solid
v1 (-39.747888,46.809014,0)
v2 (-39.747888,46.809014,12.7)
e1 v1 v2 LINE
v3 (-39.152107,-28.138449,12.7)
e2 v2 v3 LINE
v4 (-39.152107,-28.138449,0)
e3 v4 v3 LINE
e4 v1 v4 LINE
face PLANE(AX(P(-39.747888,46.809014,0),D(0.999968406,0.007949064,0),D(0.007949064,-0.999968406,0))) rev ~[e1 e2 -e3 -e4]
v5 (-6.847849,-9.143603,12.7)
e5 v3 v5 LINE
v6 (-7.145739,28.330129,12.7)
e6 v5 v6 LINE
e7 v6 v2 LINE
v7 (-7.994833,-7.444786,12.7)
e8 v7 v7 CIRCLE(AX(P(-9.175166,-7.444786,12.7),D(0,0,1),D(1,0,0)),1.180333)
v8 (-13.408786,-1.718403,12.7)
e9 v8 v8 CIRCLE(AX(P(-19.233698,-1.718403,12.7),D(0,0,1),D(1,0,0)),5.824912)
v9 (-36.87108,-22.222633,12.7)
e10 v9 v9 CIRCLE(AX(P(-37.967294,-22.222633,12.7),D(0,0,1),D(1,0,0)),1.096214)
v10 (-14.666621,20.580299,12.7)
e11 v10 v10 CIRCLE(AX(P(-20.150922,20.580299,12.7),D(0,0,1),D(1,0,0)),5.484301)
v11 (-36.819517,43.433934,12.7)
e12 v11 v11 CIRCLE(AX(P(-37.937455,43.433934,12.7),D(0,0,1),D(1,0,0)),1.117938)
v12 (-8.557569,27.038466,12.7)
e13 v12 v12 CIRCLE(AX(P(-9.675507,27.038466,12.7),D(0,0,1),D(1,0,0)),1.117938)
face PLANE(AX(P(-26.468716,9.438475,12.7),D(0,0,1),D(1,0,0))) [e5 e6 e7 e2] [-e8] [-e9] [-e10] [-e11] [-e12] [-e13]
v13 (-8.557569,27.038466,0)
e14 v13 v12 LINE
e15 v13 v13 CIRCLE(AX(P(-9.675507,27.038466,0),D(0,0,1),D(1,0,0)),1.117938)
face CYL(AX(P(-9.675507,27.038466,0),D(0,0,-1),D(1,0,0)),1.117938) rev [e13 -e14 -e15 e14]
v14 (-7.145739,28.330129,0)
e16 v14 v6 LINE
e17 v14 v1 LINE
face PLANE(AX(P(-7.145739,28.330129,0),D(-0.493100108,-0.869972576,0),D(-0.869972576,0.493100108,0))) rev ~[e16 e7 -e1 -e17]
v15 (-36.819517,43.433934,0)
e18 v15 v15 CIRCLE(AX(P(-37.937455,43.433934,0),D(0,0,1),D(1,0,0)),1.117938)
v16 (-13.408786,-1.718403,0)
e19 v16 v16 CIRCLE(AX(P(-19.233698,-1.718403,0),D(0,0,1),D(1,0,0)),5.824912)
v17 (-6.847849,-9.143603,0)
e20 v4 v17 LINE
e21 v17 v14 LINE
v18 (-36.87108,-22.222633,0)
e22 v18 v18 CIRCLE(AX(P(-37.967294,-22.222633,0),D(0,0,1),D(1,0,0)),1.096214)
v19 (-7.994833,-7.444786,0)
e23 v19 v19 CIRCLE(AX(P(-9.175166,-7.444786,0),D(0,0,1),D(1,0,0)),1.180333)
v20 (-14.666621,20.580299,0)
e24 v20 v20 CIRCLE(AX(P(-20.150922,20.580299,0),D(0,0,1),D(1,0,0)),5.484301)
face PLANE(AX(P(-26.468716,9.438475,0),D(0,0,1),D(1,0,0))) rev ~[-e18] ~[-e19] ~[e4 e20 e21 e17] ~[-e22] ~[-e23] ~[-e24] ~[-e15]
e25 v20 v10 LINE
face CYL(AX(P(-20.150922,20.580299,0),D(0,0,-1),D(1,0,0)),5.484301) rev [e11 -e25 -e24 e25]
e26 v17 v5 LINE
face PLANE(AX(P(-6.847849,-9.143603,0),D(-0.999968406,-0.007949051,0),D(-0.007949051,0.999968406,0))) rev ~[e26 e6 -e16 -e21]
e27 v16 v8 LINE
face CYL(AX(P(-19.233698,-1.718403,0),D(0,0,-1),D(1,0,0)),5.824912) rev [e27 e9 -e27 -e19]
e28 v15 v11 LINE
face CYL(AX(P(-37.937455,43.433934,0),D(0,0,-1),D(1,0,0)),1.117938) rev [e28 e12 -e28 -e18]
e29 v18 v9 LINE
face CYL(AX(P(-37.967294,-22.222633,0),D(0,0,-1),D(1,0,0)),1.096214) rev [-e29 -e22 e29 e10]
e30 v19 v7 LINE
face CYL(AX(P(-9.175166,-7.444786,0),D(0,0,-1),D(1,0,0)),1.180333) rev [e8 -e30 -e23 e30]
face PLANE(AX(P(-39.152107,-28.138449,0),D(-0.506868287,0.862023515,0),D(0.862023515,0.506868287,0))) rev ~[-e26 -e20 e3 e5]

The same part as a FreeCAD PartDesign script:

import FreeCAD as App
import Part
import Sketcher

V = App.Vector
Q = App.Units.Quantity

doc = App.newDocument("Part")
body = doc.addObject("PartDesign::Body", "Body")

sketch1 = doc.addObject("Sketcher::SketchObject", "Sketch")
body.addObject(sketch1)
sketch1.AttachmentSupport = (doc.XY_Plane, [""])
sketch1.MapMode = "FlatFace"
sketch1.addGeometry([
    Part.LineSegment(V(-7.1, 28.3, 0), V(-39.7, 46.8, 0)),
    Part.LineSegment(V(-39.7, 46.8, 0), V(-39.2, -28.1, 0)),
    Part.LineSegment(V(-39.2, -28.1, 0), V(-6.8, -9.1, 0)),
    Part.LineSegment(V(-6.8, -9.1, 0), V(-7.1, 28.3, 0)),
    Part.Circle(V(-38, -22.2, 0), V(0, 0, 1), 1.1),
    Part.Circle(V(-9.2, -7.4, 0), V(0, 0, 1), 1.2),
    Part.Circle(V(-19.2, -1.7, 0), V(0, 0, 1), 5.8),
    Part.Circle(V(-37.9, 43.4, 0), V(0, 0, 1), 1.1),
    Part.Circle(V(-20.2, 20.6, 0), V(0, 0, 1), 5.5),
    Part.Circle(V(-9.7, 27, 0), V(0, 0, 1), 1.1),
], False)
sketch1.addConstraint([
    Sketcher.Constraint("Coincident", 0, 2, 1, 1),
    Sketcher.Constraint("Coincident", 1, 2, 2, 1),
    Sketcher.Constraint("Coincident", 2, 2, 3, 1),
    Sketcher.Constraint("Coincident", 3, 2, 0, 1),
    Sketcher.Constraint("Equal", 7, 9),
    Sketcher.Constraint("Parallel", 1, 3),
    Sketcher.Constraint("Equal", 0, 2),
    Sketcher.Constraint("Equal", 2, 3),
    Sketcher.Constraint("Diameter", 4, 2.192428),
    Sketcher.Constraint("Diameter", 5, 2.360666),
    Sketcher.Constraint("Diameter", 6, 11.649824),
    Sketcher.Constraint("Diameter", 7, 2.235876),
    Sketcher.Constraint("Diameter", 8, 10.968602),
    Sketcher.Constraint("DistanceX", 6, 3, -1, 1, 19.233698),
    Sketcher.Constraint("DistanceY", -1, 1, 8, 3, 20.580299),
    Sketcher.Constraint("DistanceY", 6, 3, 8, 3, 22.298702),
    Sketcher.Constraint("DistanceY", 4, 3, 9, 3, 49.261099),
    Sketcher.Constraint("DistanceY", 5, 3, 0, 2, 54.2538),
    Sketcher.Constraint("DistanceX", 1, 2, 9, 3, 29.4766),
    Sketcher.Constraint("DistanceY", 2, 2, 6, 3, 7.4252),
    Sketcher.Constraint("Distance", 1, 74.949831),
    Sketcher.Constraint("DistanceX", 0, 2, -1, 1, 39.747888),
    Sketcher.Constraint("DistanceY", 1, 2, -1, 1, 28.138449),
    Sketcher.Constraint("DistanceX", 2, 2, -1, 1, 6.847849),
    Sketcher.Constraint("DistanceX", 4, 3, 5, 3, 28.792128),
    Sketcher.Constraint("DistanceY", 4, 3, 6, 3, 20.50423),
    Sketcher.Constraint("DistanceX", 7, 3, 5, 3, 28.762289),
    Sketcher.Constraint("DistanceY", 5, 3, 7, 3, 50.87872),
    Sketcher.Constraint("DistanceX", 7, 3, 9, 3, 28.261948),
    Sketcher.Constraint("DistanceX", 8, 3, -1, 1, 20.150922),
])
pad1 = doc.addObject("PartDesign::Pad", "Pad")
body.addObject(pad1)
pad1.Profile = sketch1
pad1.Length = Q("0.5 in")

doc.recompute()
